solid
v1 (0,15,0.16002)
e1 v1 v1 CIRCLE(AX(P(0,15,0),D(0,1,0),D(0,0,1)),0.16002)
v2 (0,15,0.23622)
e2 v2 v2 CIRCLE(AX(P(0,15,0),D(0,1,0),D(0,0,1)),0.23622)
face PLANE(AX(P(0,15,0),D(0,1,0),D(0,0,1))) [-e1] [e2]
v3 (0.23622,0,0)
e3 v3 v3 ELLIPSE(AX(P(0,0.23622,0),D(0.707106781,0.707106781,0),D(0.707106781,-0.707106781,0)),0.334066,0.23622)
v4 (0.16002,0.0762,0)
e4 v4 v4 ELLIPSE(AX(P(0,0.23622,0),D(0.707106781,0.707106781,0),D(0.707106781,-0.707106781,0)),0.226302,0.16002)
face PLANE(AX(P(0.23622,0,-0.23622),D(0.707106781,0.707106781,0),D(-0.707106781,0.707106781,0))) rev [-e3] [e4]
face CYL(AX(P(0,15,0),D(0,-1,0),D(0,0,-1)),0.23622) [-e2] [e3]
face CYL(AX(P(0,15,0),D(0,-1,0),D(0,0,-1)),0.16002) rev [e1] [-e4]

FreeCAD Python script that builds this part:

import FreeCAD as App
import Part
import Sketcher

V = App.Vector
Q = App.Units.Quantity

doc = App.newDocument("Part")
body = doc.addObject("PartDesign::Body", "Body")

sketch1 = body.newObject("Sketcher::SketchObject", "Sketch")
sketch1.AttachmentSupport = (doc.getObject("XZ_Plane"), [""])
sketch1.MapMode = "FlatFace"
sketch1.addGeometry(Part.Circle(V(0, 0, 0), V(0, 0, 1), 0.23622), False)
sketch1.addGeometry(Part.Circle(V(0, 0, 0), V(0, 0, 1), 0.16002), False)
sketch1.addConstraint(Sketcher.Constraint("Coincident", 0, 3, -1, 1))
sketch1.addConstraint(Sketcher.Constraint("Coincident", 1, 3, -1, 1))
sketch1.addConstraint(Sketcher.Constraint("Diameter", 0, Q("0.47244 mm")))
sketch1.addConstraint(Sketcher.Constraint("Diameter", 1, Q("0.32004 mm")))
pad1 = body.newObject("PartDesign::Pad", "Pad")
pad1.Profile = sketch1
pad1.Length = 15
pad1.Reversed = True

sketch2 = body.newObject("Sketcher::SketchObject", "Sketch001")
sketch2.AttachmentSupport = (doc.getObject("XY_Plane"), [""])
sketch2.MapMode = "FlatFace"
sketch2.addGeometry(Part.LineSegment(V(0.23622, 0, 0), V(-0.23622, 0.47244, 0)), False)
sketch2.addGeometry(Part.LineSegment(V(-0.23622, 0.47244, 0), V(-0.23622, 0, 0)), False)
sketch2.addGeometry(Part.LineSegment(V(-0.23622, 0, 0), V(0.23622, 0, 0)), False)
sketch2.addConstraint(Sketcher.Constraint("Coincident", 0, 2, 1, 1))
sketch2.addConstraint(Sketcher.Constraint("Coincident", 1, 2, 2, 1))
sketch2.addConstraint(Sketcher.Constraint("Coincident", 2, 2, 0, 1))
sketch2.addConstraint(Sketcher.Constraint("Vertical", 1))
sketch2.addConstraint(Sketcher.Constraint("Horizontal", 2))
sketch2.addConstraint(Sketcher.Constraint("Symmetric", 1, 2, 2, 2, -1, 1))
sketch2.addConstraint(Sketcher.Constraint("Equal", 2, 1))
sketch2.addConstraint(Sketcher.Constraint("DistanceX", 2, 1, 2, 2, Q("0.47244 mm")))
pocket1 = body.newObject("PartDesign::Pocket", "Pocket")
pocket1.Profile = sketch2
pocket1.Type = "ThroughAll"
pocket1.Midplane = True

doc.recompute()
